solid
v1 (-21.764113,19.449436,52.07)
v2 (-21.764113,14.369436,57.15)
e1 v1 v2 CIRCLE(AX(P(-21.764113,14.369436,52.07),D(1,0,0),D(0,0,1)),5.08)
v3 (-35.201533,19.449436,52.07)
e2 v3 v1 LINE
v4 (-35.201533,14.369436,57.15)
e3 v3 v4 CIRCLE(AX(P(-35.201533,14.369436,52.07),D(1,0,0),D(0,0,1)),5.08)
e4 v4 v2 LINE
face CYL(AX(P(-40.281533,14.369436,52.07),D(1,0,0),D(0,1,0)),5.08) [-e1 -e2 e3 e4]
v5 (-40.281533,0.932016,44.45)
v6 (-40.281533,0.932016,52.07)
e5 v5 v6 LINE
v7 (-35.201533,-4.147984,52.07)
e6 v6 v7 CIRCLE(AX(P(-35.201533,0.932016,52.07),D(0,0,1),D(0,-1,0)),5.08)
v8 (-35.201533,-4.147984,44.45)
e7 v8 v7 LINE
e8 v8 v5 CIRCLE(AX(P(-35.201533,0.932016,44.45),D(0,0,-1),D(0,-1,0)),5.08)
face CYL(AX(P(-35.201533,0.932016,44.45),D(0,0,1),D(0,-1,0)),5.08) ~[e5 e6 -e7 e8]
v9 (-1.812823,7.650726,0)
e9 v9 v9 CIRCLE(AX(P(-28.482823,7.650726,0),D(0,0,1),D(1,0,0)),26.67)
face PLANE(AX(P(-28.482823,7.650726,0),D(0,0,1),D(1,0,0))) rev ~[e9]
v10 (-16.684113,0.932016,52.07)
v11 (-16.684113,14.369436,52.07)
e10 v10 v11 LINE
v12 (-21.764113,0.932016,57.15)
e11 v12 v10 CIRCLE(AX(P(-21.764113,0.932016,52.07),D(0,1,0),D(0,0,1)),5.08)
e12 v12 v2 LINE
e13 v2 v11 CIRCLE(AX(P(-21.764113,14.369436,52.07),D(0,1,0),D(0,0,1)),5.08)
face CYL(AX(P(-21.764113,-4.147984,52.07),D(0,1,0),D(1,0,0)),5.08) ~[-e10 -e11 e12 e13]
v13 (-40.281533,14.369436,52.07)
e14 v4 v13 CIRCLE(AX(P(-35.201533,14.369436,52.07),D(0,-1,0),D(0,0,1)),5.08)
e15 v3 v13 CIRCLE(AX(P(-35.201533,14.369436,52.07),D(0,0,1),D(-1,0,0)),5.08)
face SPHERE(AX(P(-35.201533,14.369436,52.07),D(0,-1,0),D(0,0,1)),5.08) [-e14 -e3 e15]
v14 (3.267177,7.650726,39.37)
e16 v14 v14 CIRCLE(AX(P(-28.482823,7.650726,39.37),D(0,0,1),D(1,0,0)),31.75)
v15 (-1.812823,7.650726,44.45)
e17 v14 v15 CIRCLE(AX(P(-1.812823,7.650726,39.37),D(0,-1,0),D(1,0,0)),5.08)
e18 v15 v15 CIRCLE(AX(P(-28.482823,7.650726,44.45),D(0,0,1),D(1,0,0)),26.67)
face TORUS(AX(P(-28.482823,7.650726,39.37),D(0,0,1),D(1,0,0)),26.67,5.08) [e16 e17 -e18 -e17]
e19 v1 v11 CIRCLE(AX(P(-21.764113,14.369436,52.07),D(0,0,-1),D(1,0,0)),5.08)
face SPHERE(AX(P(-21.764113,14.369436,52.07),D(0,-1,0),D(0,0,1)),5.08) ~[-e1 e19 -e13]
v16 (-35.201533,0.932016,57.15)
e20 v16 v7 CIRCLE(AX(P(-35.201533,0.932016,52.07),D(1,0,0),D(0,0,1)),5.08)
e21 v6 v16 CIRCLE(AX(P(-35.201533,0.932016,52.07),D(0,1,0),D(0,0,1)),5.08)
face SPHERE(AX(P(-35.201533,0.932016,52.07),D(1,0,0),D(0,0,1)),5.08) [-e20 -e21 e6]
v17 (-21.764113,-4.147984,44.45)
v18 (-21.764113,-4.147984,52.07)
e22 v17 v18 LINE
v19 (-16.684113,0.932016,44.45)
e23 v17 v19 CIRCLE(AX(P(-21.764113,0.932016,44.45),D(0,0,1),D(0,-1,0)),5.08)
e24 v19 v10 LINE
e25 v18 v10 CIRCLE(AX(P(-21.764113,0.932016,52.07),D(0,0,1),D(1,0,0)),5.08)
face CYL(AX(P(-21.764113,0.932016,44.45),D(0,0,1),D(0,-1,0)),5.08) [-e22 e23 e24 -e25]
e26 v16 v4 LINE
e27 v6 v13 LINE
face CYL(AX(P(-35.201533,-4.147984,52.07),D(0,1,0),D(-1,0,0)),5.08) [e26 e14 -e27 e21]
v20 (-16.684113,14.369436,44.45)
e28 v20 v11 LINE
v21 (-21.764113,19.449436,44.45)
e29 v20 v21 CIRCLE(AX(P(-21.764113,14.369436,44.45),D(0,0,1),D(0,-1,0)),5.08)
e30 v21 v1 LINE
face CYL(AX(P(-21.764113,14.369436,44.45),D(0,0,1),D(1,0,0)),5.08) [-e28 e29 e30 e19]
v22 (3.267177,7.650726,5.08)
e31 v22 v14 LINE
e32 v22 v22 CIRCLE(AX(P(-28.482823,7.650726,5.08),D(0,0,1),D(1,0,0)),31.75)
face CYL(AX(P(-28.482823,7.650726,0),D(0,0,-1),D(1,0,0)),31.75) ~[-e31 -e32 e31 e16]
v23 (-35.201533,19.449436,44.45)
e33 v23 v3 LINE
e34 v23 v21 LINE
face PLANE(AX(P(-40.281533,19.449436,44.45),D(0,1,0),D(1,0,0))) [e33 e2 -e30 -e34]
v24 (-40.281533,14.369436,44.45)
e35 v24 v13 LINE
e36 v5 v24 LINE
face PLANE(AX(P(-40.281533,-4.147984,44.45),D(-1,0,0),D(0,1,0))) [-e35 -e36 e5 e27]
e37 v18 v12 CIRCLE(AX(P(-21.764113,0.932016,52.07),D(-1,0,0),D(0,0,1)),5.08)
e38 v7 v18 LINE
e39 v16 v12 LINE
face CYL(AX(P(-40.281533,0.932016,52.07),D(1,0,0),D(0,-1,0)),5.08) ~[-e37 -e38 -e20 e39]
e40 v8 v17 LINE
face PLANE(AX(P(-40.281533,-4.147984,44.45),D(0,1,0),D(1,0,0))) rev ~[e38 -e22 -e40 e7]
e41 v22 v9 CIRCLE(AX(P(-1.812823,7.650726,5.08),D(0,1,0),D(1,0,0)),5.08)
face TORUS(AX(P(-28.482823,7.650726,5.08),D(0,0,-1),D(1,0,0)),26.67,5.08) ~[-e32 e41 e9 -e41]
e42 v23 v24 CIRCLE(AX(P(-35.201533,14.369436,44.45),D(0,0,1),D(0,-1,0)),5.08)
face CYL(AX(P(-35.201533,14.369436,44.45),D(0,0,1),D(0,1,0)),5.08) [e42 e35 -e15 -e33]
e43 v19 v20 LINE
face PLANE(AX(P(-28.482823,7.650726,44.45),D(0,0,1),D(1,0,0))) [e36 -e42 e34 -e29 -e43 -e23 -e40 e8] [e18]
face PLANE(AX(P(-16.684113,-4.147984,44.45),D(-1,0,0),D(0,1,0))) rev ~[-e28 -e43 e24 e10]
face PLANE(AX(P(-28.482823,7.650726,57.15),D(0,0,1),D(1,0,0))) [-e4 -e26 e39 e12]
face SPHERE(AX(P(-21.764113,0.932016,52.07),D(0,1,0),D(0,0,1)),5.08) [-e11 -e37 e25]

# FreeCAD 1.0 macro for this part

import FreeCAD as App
import Part
import Sketcher
from FreeCAD import Vector
Q = App.Units.Quantity


def edges_at(feature, points):
    """Names of the edges that pass closest to the given points."""
    edges = feature.Shape.Edges
    near = lambda p: min(range(len(edges)), key=lambda i: edges[i].distToShape(Part.Vertex(*p))[0])
    return sorted({f"Edge{near(p) + 1}" for p in points})


def add_polygon(sketch, points):
    """Adds a closed chain of lines whose ends are joined by coincident constraints."""
    first, n = sketch.GeometryCount, len(points)
    for a, b in zip(points, points[1:] + points[:1]):
        sketch.addGeometry(Part.LineSegment(App.Vector(*a, 0), App.Vector(*b, 0)), False)
    for i in range(n):
        sketch.addConstraint(Sketcher.Constraint("Coincident", first + i, 2, first + (i + 1) % n, 1))

doc = App.newDocument("Part")
body = doc.addObject("PartDesign::Body", "Body")

sketch1 = body.newObject("Sketcher::SketchObject", "Sketch")
sketch1.AttachmentSupport = (doc.getObject("XY_Plane"), [""])
sketch1.MapMode = "FlatFace"
sketch1.addGeometry(Part.Circle(Vector(-28, 8, 0), Vector(0, 0, 1), 32), False)
sketch1.addConstraint(Sketcher.Constraint("Diameter", 0, Q("2.5 in")))
sketch1.addConstraint(Sketcher.Constraint("DistanceX", 0, 3, -1, 1, 28.482823))
sketch1.addConstraint(Sketcher.Constraint("DistanceY", -1, 1, 0, 3, 7.650726))
pad1 = body.newObject("PartDesign::Pad", "Pad")
pad1.Profile = sketch1
pad1.Length = Q("1.75 in")

sketch2 = body.newObject("Sketcher::SketchObject", "Sketch001")
sketch2.AttachmentSupport = (doc.getObject("XY_Plane"), [""])
sketch2.MapMode = "FlatFace"
sketch2.AttachmentOffset = App.Placement(Vector(0, 0, 1.75 * 25.4), App.Rotation())
add_polygon(sketch2, [(-40, 19), (-40, -4), (-17, -4), (-17, 19)])
sketch2.addConstraint(Sketcher.Constraint("Vertical", 0))
sketch2.addConstraint(Sketcher.Constraint("Horizontal", 1))
sketch2.addConstraint(Sketcher.Constraint("Vertical", 2))
sketch2.addConstraint(Sketcher.Constraint("Horizontal", 3))
sketch2.addConstraint(Sketcher.Constraint("Equal", 3, 0))
sketch2.addConstraint(Sketcher.Constraint("DistanceX", 1, 1, 1, 2, 23.59742))
sketch2.addConstraint(Sketcher.Constraint("DistanceX", 0, 2, -1, 1, 40.281533))
sketch2.addConstraint(Sketcher.Constraint("DistanceY", 0, 2, -1, 1, 4.147984))
pad2 = body.newObject("PartDesign::Pad", "Pad001")
pad2.Profile = sketch2
pad2.Length = Q("0.5 in")
doc.recompute()

fillet = body.newObject("PartDesign::Fillet", "Fillet")
fillet.Base = (pad2, edges_at(pad2, [
    (-60.233, 7.651, 44.45),
    (-60.233, 7.651, 0),
    (-16.684, 7.651, 57.15),
    (-28.483, -4.148, 57.15),
    (-40.282, 7.651, 57.15),
    (-28.483, 19.449, 57.15),
    (-16.684, -4.148, 50.8),
    (-40.282, -4.148, 50.8),
    (-16.684, 19.449, 50.8),
    (-40.282, 19.449, 50.8),
]))
fillet.Radius = Q("0.2 in")

doc.recompute()
